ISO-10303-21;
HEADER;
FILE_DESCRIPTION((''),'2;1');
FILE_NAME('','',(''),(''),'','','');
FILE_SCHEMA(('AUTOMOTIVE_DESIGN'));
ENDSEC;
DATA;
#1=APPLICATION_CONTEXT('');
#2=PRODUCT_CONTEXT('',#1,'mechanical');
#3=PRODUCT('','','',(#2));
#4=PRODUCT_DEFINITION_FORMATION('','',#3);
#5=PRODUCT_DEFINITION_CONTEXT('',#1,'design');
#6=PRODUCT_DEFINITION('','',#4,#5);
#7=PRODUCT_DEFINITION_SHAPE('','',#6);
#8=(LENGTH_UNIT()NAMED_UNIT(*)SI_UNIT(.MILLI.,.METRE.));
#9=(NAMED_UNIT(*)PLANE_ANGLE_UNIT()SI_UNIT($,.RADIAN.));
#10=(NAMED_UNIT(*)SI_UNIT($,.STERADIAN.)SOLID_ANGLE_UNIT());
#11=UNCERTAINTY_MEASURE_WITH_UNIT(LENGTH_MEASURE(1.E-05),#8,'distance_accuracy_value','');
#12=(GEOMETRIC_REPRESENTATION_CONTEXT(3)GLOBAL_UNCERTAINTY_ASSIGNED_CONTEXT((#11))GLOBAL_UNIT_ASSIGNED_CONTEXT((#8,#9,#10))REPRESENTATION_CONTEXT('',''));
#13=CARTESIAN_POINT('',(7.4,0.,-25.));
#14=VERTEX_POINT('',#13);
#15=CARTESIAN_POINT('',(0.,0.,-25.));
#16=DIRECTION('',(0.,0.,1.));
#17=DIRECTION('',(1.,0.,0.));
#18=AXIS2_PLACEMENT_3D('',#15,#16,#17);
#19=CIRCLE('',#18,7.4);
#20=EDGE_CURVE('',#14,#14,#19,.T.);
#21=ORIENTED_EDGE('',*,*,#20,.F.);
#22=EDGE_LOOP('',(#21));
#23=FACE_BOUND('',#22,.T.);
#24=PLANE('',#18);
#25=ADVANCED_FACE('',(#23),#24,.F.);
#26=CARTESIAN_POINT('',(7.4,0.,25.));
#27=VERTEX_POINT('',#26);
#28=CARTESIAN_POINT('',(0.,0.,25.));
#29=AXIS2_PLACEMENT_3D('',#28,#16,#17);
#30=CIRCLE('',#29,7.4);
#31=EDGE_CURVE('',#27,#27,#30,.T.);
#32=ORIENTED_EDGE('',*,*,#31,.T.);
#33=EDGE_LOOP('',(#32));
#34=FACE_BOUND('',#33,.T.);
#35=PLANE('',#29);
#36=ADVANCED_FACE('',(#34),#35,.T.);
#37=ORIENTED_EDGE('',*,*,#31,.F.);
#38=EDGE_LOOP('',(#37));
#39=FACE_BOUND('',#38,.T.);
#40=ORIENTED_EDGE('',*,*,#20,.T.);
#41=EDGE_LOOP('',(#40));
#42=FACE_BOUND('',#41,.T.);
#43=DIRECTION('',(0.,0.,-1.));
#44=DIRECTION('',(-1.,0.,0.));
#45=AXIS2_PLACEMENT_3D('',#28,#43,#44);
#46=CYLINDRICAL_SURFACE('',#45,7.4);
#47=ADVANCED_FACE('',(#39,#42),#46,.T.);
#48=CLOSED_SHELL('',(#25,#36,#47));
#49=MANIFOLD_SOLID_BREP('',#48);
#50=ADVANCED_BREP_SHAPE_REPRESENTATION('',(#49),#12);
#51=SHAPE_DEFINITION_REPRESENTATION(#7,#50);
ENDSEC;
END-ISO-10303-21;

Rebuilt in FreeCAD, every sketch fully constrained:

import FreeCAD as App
import Part
import Sketcher
from FreeCAD import Vector
Q = App.Units.Quantity

doc = App.newDocument("Part")
body = doc.addObject("PartDesign::Body", "Body")

sketch1 = body.newObject("Sketcher::SketchObject", "Sketch")
sketch1.AttachmentSupport = (doc.getObject("XY_Plane"), [""])
sketch1.MapMode = "FlatFace"
sketch1.addGeometry(Part.Circle(Vector(0, 0, 0), Vector(0, 0, 1), 7), False)
sketch1.addConstraint([
    Sketcher.Constraint("Coincident", 0, 3, -1, 1),
    Sketcher.Constraint("Diameter", 0, Q("14.8 mm")),
])
pad1 = body.newObject("PartDesign::Pad", "Pad")
pad1.Profile = sketch1
pad1.Length = 50
pad1.Midplane = True

doc.recompute()
